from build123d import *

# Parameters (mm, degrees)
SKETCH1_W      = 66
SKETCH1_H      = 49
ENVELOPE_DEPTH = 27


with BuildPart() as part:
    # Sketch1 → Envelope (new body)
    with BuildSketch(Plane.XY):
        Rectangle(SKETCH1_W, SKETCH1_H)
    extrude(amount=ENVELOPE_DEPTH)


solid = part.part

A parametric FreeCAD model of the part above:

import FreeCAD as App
import Part
import Sketcher
from FreeCAD import Vector

doc = App.newDocument("Part")
body = doc.addObject("PartDesign::Body", "Body")

# Sketch on XY plane
sketch1 = body.newObject("Sketcher::SketchObject", "Sketch")
sketch1.AttachmentSupport = (doc.getObject("XY_Plane"), [""])
sketch1.MapMode = "FlatFace"
sketch1.addGeometry([
    Part.LineSegment(Vector(-33, 24.5, 0), Vector(-33, -24.5, 0)),
    Part.LineSegment(Vector(-33, -24.5, 0), Vector(33, -24.5, 0)),
    Part.LineSegment(Vector(33, -24.5, 0), Vector(33, 24.5, 0)),
    Part.LineSegment(Vector(33, 24.5, 0), Vector(-33, 24.5, 0)),
], False)
sketch1.addConstraint([
    Sketcher.Constraint("Coincident", 0, 2, 1, 1),
    Sketcher.Constraint("Coincident", 1, 2, 2, 1),
    Sketcher.Constraint("Coincident", 2, 2, 3, 1),
    Sketcher.Constraint("Coincident", 3, 2, 0, 1),
    Sketcher.Constraint("Vertical", 0),
    Sketcher.Constraint("Horizontal", 1),
    Sketcher.Constraint("Vertical", 2),
    Sketcher.Constraint("Horizontal", 3),
    Sketcher.Constraint("Symmetric", 0, 2, 2, 2, -1, 1),
    Sketcher.Constraint("DistanceX", 1, 1, 1, 2, 66.0),
    Sketcher.Constraint("DistanceY", 0, 2, 0, 1, 49.0),
])
pad1 = body.newObject("PartDesign::Pad", "Pad")
pad1.Profile = sketch1
pad1.Length = 27

doc.recompute()
